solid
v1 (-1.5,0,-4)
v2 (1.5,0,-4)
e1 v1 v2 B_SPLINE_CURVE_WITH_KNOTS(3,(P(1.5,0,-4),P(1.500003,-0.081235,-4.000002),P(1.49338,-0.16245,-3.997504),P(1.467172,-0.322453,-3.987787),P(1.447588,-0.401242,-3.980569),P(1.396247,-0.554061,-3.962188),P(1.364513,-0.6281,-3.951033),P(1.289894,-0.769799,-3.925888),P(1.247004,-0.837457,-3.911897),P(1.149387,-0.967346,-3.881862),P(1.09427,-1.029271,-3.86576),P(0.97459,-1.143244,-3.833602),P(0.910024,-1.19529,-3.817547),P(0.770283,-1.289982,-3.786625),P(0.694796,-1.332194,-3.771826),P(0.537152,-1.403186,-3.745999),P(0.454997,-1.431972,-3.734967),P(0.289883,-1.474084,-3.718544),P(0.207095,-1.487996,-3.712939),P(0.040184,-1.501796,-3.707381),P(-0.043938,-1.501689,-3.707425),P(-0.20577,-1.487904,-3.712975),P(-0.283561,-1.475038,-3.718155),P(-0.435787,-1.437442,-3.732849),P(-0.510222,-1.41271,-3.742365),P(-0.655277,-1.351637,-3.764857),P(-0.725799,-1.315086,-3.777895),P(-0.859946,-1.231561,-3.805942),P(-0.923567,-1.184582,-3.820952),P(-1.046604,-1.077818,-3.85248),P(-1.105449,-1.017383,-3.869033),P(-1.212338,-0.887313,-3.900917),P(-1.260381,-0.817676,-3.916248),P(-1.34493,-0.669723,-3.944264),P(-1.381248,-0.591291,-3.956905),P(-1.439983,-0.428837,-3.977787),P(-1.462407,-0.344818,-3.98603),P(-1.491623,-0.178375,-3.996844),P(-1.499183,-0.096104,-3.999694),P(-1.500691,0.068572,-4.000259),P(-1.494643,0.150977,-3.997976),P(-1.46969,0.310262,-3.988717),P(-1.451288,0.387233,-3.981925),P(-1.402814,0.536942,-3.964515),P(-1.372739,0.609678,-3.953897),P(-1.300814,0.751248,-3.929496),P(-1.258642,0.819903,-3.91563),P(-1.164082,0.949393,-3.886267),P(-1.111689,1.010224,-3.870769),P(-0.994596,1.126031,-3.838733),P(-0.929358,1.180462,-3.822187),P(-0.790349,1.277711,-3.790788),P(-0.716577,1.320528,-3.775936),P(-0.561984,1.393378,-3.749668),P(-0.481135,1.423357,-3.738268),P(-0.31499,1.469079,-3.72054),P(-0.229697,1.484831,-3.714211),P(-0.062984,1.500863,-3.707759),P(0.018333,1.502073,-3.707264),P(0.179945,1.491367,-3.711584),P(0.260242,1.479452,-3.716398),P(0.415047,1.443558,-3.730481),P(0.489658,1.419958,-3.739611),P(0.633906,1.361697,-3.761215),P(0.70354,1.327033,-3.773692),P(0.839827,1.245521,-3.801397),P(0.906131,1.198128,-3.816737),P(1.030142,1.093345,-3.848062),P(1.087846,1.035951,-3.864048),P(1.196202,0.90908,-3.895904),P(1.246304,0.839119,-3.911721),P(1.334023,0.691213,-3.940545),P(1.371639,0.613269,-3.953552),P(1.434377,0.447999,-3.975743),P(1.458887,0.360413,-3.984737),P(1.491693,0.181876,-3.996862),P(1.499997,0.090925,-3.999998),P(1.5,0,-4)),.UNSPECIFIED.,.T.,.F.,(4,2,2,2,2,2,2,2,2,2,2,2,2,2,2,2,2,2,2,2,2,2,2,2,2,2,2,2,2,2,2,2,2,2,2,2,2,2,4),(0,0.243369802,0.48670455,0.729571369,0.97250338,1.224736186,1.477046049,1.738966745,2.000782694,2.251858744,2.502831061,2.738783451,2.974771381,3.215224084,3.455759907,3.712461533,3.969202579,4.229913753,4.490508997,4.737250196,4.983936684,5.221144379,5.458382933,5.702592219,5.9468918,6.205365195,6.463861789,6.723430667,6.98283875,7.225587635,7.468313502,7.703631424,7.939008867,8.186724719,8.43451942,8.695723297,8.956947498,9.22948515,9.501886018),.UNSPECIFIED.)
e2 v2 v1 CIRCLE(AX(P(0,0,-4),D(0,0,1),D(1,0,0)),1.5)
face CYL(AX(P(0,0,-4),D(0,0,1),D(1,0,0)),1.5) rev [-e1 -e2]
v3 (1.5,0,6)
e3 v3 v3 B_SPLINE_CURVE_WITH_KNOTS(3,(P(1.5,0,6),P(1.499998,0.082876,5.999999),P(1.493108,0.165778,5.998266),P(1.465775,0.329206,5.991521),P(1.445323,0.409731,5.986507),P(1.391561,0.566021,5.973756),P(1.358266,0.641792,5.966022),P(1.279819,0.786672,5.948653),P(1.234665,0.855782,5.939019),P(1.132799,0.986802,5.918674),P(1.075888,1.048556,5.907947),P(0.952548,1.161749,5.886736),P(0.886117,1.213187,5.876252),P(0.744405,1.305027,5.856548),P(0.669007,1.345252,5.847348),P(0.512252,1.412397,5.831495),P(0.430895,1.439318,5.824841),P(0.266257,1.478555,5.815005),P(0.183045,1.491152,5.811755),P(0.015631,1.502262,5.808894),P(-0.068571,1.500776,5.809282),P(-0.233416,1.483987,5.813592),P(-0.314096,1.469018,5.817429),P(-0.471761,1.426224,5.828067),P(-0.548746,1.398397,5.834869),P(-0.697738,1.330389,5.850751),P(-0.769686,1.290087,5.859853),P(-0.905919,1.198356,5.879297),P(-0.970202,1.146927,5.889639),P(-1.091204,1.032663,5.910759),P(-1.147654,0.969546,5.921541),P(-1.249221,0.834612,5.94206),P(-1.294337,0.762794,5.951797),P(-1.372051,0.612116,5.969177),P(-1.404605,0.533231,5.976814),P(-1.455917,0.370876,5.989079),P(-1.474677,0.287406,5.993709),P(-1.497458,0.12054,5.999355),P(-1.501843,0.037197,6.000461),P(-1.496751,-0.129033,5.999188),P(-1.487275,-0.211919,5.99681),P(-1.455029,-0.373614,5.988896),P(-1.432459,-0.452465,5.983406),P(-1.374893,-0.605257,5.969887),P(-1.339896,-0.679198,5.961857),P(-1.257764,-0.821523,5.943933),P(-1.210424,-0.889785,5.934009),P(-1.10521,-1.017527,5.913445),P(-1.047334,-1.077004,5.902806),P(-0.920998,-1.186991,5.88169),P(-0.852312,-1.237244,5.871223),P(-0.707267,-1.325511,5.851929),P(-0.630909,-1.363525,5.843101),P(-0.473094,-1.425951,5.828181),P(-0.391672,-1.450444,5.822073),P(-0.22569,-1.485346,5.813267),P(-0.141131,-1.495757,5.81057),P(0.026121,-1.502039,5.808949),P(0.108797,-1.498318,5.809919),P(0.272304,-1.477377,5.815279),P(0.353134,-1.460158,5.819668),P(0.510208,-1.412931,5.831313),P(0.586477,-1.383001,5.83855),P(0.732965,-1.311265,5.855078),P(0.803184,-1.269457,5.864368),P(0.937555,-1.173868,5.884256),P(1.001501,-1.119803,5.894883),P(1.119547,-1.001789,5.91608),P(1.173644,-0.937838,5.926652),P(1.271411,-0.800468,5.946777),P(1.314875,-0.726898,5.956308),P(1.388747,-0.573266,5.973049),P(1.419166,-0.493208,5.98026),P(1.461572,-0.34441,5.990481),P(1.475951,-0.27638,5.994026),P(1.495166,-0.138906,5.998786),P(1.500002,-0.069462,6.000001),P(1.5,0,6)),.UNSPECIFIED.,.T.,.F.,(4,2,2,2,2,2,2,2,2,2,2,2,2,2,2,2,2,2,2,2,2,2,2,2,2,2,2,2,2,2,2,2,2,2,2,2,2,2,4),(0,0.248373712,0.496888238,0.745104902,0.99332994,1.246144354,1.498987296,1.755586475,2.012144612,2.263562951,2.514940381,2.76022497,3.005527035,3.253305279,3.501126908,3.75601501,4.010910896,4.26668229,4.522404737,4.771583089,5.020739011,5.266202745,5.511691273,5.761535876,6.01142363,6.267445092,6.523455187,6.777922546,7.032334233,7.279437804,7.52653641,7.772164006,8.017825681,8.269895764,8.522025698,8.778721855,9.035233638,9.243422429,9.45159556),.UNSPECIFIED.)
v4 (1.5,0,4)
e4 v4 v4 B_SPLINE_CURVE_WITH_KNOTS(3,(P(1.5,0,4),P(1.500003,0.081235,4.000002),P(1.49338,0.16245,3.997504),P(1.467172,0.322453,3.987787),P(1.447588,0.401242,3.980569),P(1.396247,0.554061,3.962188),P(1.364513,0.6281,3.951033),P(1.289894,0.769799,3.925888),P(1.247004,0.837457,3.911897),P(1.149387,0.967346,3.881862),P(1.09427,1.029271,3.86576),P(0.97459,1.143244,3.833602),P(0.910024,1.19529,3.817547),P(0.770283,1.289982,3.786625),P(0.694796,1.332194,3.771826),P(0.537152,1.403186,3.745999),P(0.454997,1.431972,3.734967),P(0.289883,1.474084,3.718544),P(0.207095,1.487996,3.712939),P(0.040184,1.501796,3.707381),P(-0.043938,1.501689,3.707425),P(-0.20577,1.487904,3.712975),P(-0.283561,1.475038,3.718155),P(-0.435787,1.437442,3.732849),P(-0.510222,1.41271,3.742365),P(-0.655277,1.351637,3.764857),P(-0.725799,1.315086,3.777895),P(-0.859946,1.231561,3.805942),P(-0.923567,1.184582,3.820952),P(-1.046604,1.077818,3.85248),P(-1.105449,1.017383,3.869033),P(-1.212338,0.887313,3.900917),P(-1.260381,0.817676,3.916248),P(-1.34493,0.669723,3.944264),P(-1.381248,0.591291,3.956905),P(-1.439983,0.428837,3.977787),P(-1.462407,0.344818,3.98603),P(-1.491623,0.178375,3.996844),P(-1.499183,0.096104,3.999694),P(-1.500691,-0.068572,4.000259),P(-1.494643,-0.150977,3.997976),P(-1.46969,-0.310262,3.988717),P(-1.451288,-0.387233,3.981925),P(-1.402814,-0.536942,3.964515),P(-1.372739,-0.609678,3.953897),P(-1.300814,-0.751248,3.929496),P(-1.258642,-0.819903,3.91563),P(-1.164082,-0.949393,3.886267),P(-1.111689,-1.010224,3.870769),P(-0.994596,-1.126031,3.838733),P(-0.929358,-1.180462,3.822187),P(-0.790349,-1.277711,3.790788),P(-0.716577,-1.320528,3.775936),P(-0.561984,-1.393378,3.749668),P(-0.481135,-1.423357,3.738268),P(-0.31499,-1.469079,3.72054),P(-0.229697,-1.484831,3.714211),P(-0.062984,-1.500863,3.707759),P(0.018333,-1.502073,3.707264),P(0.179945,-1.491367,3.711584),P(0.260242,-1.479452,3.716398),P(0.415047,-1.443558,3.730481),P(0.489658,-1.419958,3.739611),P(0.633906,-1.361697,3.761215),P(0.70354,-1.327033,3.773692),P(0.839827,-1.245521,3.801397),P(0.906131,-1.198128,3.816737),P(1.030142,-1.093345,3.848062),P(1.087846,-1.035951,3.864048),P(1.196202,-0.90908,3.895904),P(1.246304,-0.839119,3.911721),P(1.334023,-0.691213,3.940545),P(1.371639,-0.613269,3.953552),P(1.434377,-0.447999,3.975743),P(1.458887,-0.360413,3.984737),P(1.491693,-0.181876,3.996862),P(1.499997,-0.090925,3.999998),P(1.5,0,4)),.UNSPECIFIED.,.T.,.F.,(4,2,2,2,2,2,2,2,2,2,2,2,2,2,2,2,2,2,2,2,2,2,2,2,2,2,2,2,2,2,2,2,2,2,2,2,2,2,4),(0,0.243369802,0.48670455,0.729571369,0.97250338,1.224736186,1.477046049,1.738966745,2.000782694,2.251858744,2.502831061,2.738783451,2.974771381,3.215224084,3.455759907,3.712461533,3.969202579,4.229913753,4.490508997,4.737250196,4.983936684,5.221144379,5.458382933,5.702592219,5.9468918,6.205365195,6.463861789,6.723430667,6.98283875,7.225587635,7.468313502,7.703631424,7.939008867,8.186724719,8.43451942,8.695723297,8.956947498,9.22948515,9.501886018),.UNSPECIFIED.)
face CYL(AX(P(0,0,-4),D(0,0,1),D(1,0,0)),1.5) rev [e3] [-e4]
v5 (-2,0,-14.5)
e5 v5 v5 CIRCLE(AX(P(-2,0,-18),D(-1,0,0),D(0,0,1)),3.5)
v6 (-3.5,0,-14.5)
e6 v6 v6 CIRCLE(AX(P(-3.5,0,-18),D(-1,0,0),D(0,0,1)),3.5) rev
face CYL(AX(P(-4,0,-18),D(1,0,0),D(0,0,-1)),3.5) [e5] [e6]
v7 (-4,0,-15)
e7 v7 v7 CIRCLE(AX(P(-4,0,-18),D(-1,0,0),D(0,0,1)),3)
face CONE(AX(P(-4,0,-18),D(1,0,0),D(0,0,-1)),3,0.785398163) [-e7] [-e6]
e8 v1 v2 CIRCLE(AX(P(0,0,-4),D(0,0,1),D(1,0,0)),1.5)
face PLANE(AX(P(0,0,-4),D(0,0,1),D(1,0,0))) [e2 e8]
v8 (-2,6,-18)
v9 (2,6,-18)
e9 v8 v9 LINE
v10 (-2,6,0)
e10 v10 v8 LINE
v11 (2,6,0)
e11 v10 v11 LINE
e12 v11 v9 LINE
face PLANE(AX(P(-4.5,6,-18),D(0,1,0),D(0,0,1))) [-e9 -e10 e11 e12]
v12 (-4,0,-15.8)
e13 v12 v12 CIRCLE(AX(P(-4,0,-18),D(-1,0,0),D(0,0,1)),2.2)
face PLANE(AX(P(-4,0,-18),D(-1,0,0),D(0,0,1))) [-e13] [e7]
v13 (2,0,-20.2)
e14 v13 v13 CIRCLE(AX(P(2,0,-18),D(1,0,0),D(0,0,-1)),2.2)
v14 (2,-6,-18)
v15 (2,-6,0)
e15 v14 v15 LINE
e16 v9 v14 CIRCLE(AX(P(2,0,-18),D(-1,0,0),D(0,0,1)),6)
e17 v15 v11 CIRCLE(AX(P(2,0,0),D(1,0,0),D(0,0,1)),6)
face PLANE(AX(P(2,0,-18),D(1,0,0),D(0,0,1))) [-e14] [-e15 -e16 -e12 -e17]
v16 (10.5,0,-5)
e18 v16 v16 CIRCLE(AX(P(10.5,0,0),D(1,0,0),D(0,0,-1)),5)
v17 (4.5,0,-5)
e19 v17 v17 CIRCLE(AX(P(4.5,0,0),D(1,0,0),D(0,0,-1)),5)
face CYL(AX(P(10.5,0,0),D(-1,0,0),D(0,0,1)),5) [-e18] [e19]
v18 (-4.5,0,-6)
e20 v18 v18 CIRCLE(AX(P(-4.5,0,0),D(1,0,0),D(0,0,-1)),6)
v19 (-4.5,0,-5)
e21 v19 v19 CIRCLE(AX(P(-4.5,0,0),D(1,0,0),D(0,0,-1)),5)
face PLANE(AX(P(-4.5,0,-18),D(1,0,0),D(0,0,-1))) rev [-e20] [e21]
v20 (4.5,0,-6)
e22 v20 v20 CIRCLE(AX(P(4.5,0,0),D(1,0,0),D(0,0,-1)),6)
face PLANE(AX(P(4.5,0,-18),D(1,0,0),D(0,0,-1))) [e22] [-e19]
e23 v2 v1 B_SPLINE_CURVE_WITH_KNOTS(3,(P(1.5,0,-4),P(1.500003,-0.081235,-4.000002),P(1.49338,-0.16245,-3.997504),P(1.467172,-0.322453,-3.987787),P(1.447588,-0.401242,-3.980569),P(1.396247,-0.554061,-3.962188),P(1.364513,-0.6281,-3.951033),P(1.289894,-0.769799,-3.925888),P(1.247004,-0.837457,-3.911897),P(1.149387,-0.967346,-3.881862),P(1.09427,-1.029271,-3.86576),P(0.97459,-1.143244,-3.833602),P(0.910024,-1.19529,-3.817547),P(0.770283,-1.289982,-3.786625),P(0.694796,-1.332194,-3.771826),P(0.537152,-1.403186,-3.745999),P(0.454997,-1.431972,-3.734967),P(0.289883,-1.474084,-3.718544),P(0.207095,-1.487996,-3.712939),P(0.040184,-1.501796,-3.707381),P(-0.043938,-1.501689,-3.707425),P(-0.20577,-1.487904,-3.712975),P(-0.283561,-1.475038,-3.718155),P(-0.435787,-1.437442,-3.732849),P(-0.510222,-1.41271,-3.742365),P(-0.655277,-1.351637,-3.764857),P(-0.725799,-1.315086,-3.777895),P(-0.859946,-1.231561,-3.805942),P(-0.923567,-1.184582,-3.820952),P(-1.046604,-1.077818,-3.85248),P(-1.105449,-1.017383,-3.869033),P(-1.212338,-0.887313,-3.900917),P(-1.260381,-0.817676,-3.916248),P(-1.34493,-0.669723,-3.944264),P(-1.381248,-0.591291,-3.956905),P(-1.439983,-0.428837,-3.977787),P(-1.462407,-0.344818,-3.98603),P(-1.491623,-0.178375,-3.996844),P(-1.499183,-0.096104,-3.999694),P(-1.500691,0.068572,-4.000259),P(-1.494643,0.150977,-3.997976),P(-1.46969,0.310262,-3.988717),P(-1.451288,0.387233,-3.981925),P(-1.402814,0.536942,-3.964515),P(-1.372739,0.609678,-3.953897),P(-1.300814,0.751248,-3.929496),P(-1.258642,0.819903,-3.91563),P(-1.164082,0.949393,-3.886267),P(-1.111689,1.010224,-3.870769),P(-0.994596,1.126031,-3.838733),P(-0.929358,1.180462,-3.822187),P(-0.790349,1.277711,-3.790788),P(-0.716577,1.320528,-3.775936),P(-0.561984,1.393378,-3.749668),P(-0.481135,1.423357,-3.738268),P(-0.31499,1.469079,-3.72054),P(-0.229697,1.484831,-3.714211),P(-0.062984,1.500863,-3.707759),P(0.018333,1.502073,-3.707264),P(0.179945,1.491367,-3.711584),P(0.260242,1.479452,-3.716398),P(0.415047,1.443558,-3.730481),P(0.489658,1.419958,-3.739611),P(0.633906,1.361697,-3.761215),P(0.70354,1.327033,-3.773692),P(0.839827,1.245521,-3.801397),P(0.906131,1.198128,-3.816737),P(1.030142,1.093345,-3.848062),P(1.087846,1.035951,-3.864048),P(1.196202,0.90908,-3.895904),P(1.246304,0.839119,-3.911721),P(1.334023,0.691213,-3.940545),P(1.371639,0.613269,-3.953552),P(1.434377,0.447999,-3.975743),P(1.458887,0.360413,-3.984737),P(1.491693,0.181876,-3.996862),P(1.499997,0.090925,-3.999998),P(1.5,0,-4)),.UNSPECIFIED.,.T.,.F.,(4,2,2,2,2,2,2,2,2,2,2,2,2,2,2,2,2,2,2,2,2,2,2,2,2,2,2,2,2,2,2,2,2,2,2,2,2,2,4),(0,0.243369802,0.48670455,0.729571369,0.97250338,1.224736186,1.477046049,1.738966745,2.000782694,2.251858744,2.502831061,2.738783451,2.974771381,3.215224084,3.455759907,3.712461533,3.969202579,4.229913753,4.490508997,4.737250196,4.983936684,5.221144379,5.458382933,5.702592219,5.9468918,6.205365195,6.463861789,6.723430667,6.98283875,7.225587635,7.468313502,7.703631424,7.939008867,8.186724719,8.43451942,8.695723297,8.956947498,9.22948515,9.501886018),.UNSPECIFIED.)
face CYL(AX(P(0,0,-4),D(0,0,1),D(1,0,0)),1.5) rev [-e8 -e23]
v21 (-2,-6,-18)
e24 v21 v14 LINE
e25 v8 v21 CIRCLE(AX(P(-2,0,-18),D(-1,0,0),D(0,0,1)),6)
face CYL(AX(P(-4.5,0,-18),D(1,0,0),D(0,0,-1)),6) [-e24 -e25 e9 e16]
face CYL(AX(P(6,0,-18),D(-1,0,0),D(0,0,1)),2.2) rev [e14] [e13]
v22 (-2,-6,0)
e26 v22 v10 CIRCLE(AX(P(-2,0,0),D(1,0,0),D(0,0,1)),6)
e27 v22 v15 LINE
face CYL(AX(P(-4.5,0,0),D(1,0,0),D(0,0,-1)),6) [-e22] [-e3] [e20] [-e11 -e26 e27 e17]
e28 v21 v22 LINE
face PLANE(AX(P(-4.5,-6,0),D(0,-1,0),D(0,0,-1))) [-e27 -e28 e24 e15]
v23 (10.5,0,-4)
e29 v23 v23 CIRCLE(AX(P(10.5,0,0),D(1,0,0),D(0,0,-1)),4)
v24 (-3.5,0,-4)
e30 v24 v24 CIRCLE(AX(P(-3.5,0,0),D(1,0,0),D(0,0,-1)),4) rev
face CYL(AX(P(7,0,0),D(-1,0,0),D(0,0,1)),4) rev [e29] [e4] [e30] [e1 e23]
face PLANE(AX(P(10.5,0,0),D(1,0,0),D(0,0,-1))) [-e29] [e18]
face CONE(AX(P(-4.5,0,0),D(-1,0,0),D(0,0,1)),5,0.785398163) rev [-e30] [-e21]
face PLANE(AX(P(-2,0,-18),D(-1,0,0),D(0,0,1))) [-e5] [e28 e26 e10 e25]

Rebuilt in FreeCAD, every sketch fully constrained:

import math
import FreeCAD as App
import Part
import Sketcher

V = App.Vector
Q = App.Units.Quantity


def edges_at(feature, points):
    """Names of the edges that pass closest to the given points."""
    edges = feature.Shape.Edges
    near = lambda p: min(range(len(edges)), key=lambda i: edges[i].distToShape(Part.Vertex(*p))[0])
    return sorted({f"Edge{near(p) + 1}" for p in points})

doc = App.newDocument("Part")
params = doc.addObject("Spreadsheet::Sheet", "Params")
for row, (alias, value) in enumerate([
    ("sketch1_radius", "6 mm"),
    ("sketch1_height", "18 mm"),
    ("pad1_length", "4.5 mm"),
    ("pad1_length2", "4.5 mm"),
    ("sketch2_radius", "4 mm"),
    ("sketch3_diameter", "4.4 mm"),
    ("sketch4_radius", "6 mm"),
    ("sketch4_height", "18 mm"),
    ("pocket3_length", "2.5 mm"),
    ("sketch5_diameter", "7 mm"),
    ("sketch5_diameter2", "4.4 mm"),
    ("pad2_length", "2 mm"),
    ("chamfer_size", "0.5 mm"),
    ("sketch6_diameter", "10 mm"),
    ("pad3_length", "6 mm"),
    ("sketch7_diameter", "8 mm"),
    ("pocket4_length", "16 mm"),
    ("chamfer2_size", "1 mm"),
    ("sketch8_diameter", "3 mm"),
    ("pocket5_length", "10 mm"),
], start=1):
    params.set(f"A{row}", alias)
    params.set(f"B{row}", "=" + value)
    params.setAlias(f"B{row}", alias)

body = doc.addObject("PartDesign::Body", "Body")

# Sketch on YZ plane
sketch1 = doc.addObject("Sketcher::SketchObject", "Sketch")
body.addObject(sketch1)
sketch1.AttachmentSupport = (doc.YZ_Plane, [""])
sketch1.MapMode = "FlatFace"
sketch1.addGeometry([
    Part.LineSegment(V(-6, 0, 0), V(-6, -18, 0)),
    Part.ArcOfCircle(Part.Circle(V(0, -18, 0), V(0, 0, 1), 6), math.radians(180), math.radians(360)),
    Part.LineSegment(V(6, -18, 0), V(6, 0, 0)),
    Part.ArcOfCircle(Part.Circle(V(0, 0, 0), V(0, 0, 1), 6), math.radians(0), math.radians(180)),
], False)
sketch1.addConstraint([
    Sketcher.Constraint("Tangent", 0, 2, 1, 1),
    Sketcher.Constraint("Tangent", 1, 2, 2, 1),
    Sketcher.Constraint("Tangent", 2, 2, 3, 1),
    Sketcher.Constraint("Tangent", 3, 2, 0, 1),
    Sketcher.Constraint("Vertical", 0),
    Sketcher.Constraint("Vertical", 2),
    Sketcher.Constraint("Coincident", 3, 3, -1, 1),
    Sketcher.Constraint("Radius", 1, Q("6 mm")),
    Sketcher.Constraint("DistanceY", 0, 2, 0, 1, Q("18 mm")),
])
sketch1.setExpression("Constraints[7]", "Params.sketch1_radius")
sketch1.setExpression("Constraints[8]", "Params.sketch1_height")
pad1 = doc.addObject("PartDesign::Pad", "Pad")
body.addObject(pad1)
pad1.Profile = sketch1
pad1.Type = "TwoLengths"
pad1.setExpression("Length", "Params.pad1_length")
pad1.setExpression("Length2", "Params.pad1_length2")

# Sketch on YZ plane
sketch2 = doc.addObject("Sketcher::SketchObject", "Sketch001")
body.addObject(sketch2)
sketch2.AttachmentSupport = (doc.YZ_Plane, [""])
sketch2.MapMode = "FlatFace"
sketch2.addGeometry([
    Part.ArcOfCircle(Part.Circle(V(0, 0, 0), V(0, 0, 1), 4), math.radians(-60), math.radians(240)),
    Part.ArcOfCircle(Part.Circle(V(0, 0, 0), V(0, 0, 1), 4), math.radians(-120), math.radians(-60)),
], False)
sketch2.addConstraint([
    Sketcher.Constraint("Tangent", 0, 1, 1, 2),
    Sketcher.Constraint("Coincident", 1, 1, 0, 2),
    Sketcher.Constraint("Coincident", 0, 3, -1, 1),
    Sketcher.Constraint("Horizontal", 0, 1, 1, 1),
    Sketcher.Constraint("Radius", 0, Q("4 mm")),
    Sketcher.Constraint("DistanceX", -1, 1, 0, 1, Q("2 mm")),
])
sketch2.setExpression("Constraints[4]", "Params.sketch2_radius")
pocket1 = doc.addObject("PartDesign::Pocket", "Pocket")
body.addObject(pocket1)
pocket1.Profile = sketch2
pocket1.Type = "ThroughAll"
pocket1.Midplane = True

# Sketch on YZ plane
sketch3 = doc.addObject("Sketcher::SketchObject", "Sketch002")
body.addObject(sketch3)
sketch3.AttachmentSupport = (doc.YZ_Plane, [""])
sketch3.MapMode = "FlatFace"
sketch3.addGeometry(Part.Circle(V(0, -18, 0), V(0, 0, 1), 2.2), False)
sketch3.addConstraint([
    Sketcher.Constraint("PointOnObject", 0, 3, -2),
    Sketcher.Constraint("Diameter", 0, Q("4.4 mm")),
    Sketcher.Constraint("DistanceY", 0, 3, -1, 1, Q("18 mm")),
])
sketch3.setExpression("Constraints[1]", "Params.sketch3_diameter")
pocket2 = doc.addObject("PartDesign::Pocket", "Pocket001")
body.addObject(pocket2)
pocket2.Profile = sketch3
pocket2.Type = "ThroughAll"
pocket2.Midplane = True

# Sketch on YZ plane
sketch4 = doc.addObject("Sketcher::SketchObject", "Sketch003")
body.addObject(sketch4)
sketch4.AttachmentSupport = (doc.YZ_Plane, [""])
sketch4.MapMode = "FlatFace"
sketch4.AttachmentOffset = App.Placement(V(0, 0, -4.5), App.Rotation())
sketch4.addGeometry([
    Part.LineSegment(V(6, 0, 0), V(6, -18, 0)),
    Part.ArcOfCircle(Part.Circle(V(0, -18, 0), V(0, 0, 1), 6), math.radians(180), math.radians(360)),
    Part.LineSegment(V(-6, -18, 0), V(-6, 0, 0)),
    Part.ArcOfCircle(Part.Circle(V(0, 0, 0), V(0, 0, 1), 6), math.radians(180), math.radians(360)),
], False)
sketch4.addConstraint([
    Sketcher.Constraint("Tangent", 0, 2, 1, 2),
    Sketcher.Constraint("Tangent", 1, 1, 2, 1),
    Sketcher.Constraint("Tangent", 2, 2, 3, 1),
    Sketcher.Constraint("Tangent", 3, 2, 0, 1),
    Sketcher.Constraint("Vertical", 0),
    Sketcher.Constraint("Vertical", 2),
    Sketcher.Constraint("Coincident", 3, 3, -1, 1),
    Sketcher.Constraint("Radius", 1, Q("6 mm")),
    Sketcher.Constraint("DistanceY", 0, 2, 0, 1, Q("18 mm")),
])
sketch4.setExpression("Constraints[7]", "Params.sketch4_radius")
sketch4.setExpression("Constraints[8]", "Params.sketch4_height")
pocket3 = doc.addObject("PartDesign::Pocket", "Pocket002")
body.addObject(pocket3)
pocket3.Profile = sketch4
pocket3.setExpression("Length", "Params.pocket3_length")
pocket3.Reversed = True
doc.recompute()

mirrored = doc.addObject("PartDesign::Mirrored", "Mirrored")
body.addObject(mirrored)
mirrored.Originals = [pocket3]
mirrored.MirrorPlane = (doc.YZ_Plane, [""])
body.Tip = mirrored

# Sketch on YZ plane
sketch5 = doc.addObject("Sketcher::SketchObject", "Sketch004")
body.addObject(sketch5)
sketch5.AttachmentSupport = (doc.YZ_Plane, [""])
sketch5.MapMode = "FlatFace"
sketch5.AttachmentOffset = App.Placement(V(0, 0, -2), App.Rotation())
sketch5.addGeometry([
    Part.Circle(V(0, -18, 0), V(0, 0, 1), 3.5),
    Part.Circle(V(0, -18, 0), V(0, 0, 1), 2.2),
], False)
sketch5.addConstraint([
    Sketcher.Constraint("Coincident", 1, 3, 0, 3),
    Sketcher.Constraint("PointOnObject", 0, 3, -2),
    Sketcher.Constraint("Diameter", 0, Q("7 mm")),
    Sketcher.Constraint("Diameter", 1, Q("4.4 mm")),
    Sketcher.Constraint("DistanceY", 0, 3, -1, 1, Q("18 mm")),
])
sketch5.setExpression("Constraints[2]", "Params.sketch5_diameter")
sketch5.setExpression("Constraints[3]", "Params.sketch5_diameter2")
pad2 = doc.addObject("PartDesign::Pad", "Pad001")
body.addObject(pad2)
pad2.Profile = sketch5
pad2.setExpression("Length", "Params.pad2_length")
pad2.Reversed = True
doc.recompute()

chamfer = doc.addObject("PartDesign::Chamfer", "Chamfer")
body.addObject(chamfer)
chamfer.Base = (pad2, edges_at(pad2, [(-4, 0, -21.5)]))
chamfer.setExpression("Size", "Params.chamfer_size")

# Sketch on YZ plane
sketch6 = doc.addObject("Sketcher::SketchObject", "Sketch005")
body.addObject(sketch6)
sketch6.AttachmentSupport = (doc.YZ_Plane, [""])
sketch6.MapMode = "FlatFace"
sketch6.AttachmentOffset = App.Placement(V(0, 0, 4.5), App.Rotation())
sketch6.addGeometry(Part.Circle(V(0, 0, 0), V(0, 0, 1), 5), False)
sketch6.addConstraint([
    Sketcher.Constraint("Coincident", 0, 3, -1, 1),
    Sketcher.Constraint("Diameter", 0, Q("10 mm")),
])
sketch6.setExpression("Constraints[1]", "Params.sketch6_diameter")
pad3 = doc.addObject("PartDesign::Pad", "Pad002")
body.addObject(pad3)
pad3.Profile = sketch6
pad3.setExpression("Length", "Params.pad3_length")

# Sketch on YZ plane
sketch7 = doc.addObject("Sketcher::SketchObject", "Sketch006")
body.addObject(sketch7)
sketch7.AttachmentSupport = (doc.YZ_Plane, [""])
sketch7.MapMode = "FlatFace"
sketch7.AttachmentOffset = App.Placement(V(0, 0, 10.5), App.Rotation())
sketch7.addGeometry(Part.Circle(V(0, 0, 0), V(0, 0, 1), 4), False)
sketch7.addConstraint([
    Sketcher.Constraint("Coincident", 0, 3, -1, 1),
    Sketcher.Constraint("Diameter", 0, Q("8 mm")),
])
sketch7.setExpression("Constraints[1]", "Params.sketch7_diameter")
pocket4 = doc.addObject("PartDesign::Pocket", "Pocket003")
body.addObject(pocket4)
pocket4.Profile = sketch7
pocket4.setExpression("Length", "Params.pocket4_length")
doc.recompute()

chamfer2 = doc.addObject("PartDesign::Chamfer", "Chamfer001")
body.addObject(chamfer2)
chamfer2.Base = (pocket4, edges_at(pocket4, [(-4.5, -1.035, -3.864)]))
chamfer2.setExpression("Size", "Params.chamfer2_size")

# Sketch on XY plane
sketch8 = doc.addObject("Sketcher::SketchObject", "Sketch007")
body.addObject(sketch8)
sketch8.AttachmentSupport = (doc.XY_Plane, [""])
sketch8.MapMode = "FlatFace"
sketch8.AttachmentOffset = App.Placement(V(0, 0, 6), App.Rotation())
sketch8.addGeometry(Part.Circle(V(0, 0, 0), V(0, 0, 1), 1.5), False)
sketch8.addConstraint([
    Sketcher.Constraint("Coincident", 0, 3, -1, 1),
    Sketcher.Constraint("Diameter", 0, Q("3 mm")),
])
sketch8.setExpression("Constraints[1]", "Params.sketch8_diameter")
pocket5 = doc.addObject("PartDesign::Pocket", "Pocket004")
body.addObject(pocket5)
pocket5.Profile = sketch8
pocket5.setExpression("Length", "Params.pocket5_length")

doc.recompute()
